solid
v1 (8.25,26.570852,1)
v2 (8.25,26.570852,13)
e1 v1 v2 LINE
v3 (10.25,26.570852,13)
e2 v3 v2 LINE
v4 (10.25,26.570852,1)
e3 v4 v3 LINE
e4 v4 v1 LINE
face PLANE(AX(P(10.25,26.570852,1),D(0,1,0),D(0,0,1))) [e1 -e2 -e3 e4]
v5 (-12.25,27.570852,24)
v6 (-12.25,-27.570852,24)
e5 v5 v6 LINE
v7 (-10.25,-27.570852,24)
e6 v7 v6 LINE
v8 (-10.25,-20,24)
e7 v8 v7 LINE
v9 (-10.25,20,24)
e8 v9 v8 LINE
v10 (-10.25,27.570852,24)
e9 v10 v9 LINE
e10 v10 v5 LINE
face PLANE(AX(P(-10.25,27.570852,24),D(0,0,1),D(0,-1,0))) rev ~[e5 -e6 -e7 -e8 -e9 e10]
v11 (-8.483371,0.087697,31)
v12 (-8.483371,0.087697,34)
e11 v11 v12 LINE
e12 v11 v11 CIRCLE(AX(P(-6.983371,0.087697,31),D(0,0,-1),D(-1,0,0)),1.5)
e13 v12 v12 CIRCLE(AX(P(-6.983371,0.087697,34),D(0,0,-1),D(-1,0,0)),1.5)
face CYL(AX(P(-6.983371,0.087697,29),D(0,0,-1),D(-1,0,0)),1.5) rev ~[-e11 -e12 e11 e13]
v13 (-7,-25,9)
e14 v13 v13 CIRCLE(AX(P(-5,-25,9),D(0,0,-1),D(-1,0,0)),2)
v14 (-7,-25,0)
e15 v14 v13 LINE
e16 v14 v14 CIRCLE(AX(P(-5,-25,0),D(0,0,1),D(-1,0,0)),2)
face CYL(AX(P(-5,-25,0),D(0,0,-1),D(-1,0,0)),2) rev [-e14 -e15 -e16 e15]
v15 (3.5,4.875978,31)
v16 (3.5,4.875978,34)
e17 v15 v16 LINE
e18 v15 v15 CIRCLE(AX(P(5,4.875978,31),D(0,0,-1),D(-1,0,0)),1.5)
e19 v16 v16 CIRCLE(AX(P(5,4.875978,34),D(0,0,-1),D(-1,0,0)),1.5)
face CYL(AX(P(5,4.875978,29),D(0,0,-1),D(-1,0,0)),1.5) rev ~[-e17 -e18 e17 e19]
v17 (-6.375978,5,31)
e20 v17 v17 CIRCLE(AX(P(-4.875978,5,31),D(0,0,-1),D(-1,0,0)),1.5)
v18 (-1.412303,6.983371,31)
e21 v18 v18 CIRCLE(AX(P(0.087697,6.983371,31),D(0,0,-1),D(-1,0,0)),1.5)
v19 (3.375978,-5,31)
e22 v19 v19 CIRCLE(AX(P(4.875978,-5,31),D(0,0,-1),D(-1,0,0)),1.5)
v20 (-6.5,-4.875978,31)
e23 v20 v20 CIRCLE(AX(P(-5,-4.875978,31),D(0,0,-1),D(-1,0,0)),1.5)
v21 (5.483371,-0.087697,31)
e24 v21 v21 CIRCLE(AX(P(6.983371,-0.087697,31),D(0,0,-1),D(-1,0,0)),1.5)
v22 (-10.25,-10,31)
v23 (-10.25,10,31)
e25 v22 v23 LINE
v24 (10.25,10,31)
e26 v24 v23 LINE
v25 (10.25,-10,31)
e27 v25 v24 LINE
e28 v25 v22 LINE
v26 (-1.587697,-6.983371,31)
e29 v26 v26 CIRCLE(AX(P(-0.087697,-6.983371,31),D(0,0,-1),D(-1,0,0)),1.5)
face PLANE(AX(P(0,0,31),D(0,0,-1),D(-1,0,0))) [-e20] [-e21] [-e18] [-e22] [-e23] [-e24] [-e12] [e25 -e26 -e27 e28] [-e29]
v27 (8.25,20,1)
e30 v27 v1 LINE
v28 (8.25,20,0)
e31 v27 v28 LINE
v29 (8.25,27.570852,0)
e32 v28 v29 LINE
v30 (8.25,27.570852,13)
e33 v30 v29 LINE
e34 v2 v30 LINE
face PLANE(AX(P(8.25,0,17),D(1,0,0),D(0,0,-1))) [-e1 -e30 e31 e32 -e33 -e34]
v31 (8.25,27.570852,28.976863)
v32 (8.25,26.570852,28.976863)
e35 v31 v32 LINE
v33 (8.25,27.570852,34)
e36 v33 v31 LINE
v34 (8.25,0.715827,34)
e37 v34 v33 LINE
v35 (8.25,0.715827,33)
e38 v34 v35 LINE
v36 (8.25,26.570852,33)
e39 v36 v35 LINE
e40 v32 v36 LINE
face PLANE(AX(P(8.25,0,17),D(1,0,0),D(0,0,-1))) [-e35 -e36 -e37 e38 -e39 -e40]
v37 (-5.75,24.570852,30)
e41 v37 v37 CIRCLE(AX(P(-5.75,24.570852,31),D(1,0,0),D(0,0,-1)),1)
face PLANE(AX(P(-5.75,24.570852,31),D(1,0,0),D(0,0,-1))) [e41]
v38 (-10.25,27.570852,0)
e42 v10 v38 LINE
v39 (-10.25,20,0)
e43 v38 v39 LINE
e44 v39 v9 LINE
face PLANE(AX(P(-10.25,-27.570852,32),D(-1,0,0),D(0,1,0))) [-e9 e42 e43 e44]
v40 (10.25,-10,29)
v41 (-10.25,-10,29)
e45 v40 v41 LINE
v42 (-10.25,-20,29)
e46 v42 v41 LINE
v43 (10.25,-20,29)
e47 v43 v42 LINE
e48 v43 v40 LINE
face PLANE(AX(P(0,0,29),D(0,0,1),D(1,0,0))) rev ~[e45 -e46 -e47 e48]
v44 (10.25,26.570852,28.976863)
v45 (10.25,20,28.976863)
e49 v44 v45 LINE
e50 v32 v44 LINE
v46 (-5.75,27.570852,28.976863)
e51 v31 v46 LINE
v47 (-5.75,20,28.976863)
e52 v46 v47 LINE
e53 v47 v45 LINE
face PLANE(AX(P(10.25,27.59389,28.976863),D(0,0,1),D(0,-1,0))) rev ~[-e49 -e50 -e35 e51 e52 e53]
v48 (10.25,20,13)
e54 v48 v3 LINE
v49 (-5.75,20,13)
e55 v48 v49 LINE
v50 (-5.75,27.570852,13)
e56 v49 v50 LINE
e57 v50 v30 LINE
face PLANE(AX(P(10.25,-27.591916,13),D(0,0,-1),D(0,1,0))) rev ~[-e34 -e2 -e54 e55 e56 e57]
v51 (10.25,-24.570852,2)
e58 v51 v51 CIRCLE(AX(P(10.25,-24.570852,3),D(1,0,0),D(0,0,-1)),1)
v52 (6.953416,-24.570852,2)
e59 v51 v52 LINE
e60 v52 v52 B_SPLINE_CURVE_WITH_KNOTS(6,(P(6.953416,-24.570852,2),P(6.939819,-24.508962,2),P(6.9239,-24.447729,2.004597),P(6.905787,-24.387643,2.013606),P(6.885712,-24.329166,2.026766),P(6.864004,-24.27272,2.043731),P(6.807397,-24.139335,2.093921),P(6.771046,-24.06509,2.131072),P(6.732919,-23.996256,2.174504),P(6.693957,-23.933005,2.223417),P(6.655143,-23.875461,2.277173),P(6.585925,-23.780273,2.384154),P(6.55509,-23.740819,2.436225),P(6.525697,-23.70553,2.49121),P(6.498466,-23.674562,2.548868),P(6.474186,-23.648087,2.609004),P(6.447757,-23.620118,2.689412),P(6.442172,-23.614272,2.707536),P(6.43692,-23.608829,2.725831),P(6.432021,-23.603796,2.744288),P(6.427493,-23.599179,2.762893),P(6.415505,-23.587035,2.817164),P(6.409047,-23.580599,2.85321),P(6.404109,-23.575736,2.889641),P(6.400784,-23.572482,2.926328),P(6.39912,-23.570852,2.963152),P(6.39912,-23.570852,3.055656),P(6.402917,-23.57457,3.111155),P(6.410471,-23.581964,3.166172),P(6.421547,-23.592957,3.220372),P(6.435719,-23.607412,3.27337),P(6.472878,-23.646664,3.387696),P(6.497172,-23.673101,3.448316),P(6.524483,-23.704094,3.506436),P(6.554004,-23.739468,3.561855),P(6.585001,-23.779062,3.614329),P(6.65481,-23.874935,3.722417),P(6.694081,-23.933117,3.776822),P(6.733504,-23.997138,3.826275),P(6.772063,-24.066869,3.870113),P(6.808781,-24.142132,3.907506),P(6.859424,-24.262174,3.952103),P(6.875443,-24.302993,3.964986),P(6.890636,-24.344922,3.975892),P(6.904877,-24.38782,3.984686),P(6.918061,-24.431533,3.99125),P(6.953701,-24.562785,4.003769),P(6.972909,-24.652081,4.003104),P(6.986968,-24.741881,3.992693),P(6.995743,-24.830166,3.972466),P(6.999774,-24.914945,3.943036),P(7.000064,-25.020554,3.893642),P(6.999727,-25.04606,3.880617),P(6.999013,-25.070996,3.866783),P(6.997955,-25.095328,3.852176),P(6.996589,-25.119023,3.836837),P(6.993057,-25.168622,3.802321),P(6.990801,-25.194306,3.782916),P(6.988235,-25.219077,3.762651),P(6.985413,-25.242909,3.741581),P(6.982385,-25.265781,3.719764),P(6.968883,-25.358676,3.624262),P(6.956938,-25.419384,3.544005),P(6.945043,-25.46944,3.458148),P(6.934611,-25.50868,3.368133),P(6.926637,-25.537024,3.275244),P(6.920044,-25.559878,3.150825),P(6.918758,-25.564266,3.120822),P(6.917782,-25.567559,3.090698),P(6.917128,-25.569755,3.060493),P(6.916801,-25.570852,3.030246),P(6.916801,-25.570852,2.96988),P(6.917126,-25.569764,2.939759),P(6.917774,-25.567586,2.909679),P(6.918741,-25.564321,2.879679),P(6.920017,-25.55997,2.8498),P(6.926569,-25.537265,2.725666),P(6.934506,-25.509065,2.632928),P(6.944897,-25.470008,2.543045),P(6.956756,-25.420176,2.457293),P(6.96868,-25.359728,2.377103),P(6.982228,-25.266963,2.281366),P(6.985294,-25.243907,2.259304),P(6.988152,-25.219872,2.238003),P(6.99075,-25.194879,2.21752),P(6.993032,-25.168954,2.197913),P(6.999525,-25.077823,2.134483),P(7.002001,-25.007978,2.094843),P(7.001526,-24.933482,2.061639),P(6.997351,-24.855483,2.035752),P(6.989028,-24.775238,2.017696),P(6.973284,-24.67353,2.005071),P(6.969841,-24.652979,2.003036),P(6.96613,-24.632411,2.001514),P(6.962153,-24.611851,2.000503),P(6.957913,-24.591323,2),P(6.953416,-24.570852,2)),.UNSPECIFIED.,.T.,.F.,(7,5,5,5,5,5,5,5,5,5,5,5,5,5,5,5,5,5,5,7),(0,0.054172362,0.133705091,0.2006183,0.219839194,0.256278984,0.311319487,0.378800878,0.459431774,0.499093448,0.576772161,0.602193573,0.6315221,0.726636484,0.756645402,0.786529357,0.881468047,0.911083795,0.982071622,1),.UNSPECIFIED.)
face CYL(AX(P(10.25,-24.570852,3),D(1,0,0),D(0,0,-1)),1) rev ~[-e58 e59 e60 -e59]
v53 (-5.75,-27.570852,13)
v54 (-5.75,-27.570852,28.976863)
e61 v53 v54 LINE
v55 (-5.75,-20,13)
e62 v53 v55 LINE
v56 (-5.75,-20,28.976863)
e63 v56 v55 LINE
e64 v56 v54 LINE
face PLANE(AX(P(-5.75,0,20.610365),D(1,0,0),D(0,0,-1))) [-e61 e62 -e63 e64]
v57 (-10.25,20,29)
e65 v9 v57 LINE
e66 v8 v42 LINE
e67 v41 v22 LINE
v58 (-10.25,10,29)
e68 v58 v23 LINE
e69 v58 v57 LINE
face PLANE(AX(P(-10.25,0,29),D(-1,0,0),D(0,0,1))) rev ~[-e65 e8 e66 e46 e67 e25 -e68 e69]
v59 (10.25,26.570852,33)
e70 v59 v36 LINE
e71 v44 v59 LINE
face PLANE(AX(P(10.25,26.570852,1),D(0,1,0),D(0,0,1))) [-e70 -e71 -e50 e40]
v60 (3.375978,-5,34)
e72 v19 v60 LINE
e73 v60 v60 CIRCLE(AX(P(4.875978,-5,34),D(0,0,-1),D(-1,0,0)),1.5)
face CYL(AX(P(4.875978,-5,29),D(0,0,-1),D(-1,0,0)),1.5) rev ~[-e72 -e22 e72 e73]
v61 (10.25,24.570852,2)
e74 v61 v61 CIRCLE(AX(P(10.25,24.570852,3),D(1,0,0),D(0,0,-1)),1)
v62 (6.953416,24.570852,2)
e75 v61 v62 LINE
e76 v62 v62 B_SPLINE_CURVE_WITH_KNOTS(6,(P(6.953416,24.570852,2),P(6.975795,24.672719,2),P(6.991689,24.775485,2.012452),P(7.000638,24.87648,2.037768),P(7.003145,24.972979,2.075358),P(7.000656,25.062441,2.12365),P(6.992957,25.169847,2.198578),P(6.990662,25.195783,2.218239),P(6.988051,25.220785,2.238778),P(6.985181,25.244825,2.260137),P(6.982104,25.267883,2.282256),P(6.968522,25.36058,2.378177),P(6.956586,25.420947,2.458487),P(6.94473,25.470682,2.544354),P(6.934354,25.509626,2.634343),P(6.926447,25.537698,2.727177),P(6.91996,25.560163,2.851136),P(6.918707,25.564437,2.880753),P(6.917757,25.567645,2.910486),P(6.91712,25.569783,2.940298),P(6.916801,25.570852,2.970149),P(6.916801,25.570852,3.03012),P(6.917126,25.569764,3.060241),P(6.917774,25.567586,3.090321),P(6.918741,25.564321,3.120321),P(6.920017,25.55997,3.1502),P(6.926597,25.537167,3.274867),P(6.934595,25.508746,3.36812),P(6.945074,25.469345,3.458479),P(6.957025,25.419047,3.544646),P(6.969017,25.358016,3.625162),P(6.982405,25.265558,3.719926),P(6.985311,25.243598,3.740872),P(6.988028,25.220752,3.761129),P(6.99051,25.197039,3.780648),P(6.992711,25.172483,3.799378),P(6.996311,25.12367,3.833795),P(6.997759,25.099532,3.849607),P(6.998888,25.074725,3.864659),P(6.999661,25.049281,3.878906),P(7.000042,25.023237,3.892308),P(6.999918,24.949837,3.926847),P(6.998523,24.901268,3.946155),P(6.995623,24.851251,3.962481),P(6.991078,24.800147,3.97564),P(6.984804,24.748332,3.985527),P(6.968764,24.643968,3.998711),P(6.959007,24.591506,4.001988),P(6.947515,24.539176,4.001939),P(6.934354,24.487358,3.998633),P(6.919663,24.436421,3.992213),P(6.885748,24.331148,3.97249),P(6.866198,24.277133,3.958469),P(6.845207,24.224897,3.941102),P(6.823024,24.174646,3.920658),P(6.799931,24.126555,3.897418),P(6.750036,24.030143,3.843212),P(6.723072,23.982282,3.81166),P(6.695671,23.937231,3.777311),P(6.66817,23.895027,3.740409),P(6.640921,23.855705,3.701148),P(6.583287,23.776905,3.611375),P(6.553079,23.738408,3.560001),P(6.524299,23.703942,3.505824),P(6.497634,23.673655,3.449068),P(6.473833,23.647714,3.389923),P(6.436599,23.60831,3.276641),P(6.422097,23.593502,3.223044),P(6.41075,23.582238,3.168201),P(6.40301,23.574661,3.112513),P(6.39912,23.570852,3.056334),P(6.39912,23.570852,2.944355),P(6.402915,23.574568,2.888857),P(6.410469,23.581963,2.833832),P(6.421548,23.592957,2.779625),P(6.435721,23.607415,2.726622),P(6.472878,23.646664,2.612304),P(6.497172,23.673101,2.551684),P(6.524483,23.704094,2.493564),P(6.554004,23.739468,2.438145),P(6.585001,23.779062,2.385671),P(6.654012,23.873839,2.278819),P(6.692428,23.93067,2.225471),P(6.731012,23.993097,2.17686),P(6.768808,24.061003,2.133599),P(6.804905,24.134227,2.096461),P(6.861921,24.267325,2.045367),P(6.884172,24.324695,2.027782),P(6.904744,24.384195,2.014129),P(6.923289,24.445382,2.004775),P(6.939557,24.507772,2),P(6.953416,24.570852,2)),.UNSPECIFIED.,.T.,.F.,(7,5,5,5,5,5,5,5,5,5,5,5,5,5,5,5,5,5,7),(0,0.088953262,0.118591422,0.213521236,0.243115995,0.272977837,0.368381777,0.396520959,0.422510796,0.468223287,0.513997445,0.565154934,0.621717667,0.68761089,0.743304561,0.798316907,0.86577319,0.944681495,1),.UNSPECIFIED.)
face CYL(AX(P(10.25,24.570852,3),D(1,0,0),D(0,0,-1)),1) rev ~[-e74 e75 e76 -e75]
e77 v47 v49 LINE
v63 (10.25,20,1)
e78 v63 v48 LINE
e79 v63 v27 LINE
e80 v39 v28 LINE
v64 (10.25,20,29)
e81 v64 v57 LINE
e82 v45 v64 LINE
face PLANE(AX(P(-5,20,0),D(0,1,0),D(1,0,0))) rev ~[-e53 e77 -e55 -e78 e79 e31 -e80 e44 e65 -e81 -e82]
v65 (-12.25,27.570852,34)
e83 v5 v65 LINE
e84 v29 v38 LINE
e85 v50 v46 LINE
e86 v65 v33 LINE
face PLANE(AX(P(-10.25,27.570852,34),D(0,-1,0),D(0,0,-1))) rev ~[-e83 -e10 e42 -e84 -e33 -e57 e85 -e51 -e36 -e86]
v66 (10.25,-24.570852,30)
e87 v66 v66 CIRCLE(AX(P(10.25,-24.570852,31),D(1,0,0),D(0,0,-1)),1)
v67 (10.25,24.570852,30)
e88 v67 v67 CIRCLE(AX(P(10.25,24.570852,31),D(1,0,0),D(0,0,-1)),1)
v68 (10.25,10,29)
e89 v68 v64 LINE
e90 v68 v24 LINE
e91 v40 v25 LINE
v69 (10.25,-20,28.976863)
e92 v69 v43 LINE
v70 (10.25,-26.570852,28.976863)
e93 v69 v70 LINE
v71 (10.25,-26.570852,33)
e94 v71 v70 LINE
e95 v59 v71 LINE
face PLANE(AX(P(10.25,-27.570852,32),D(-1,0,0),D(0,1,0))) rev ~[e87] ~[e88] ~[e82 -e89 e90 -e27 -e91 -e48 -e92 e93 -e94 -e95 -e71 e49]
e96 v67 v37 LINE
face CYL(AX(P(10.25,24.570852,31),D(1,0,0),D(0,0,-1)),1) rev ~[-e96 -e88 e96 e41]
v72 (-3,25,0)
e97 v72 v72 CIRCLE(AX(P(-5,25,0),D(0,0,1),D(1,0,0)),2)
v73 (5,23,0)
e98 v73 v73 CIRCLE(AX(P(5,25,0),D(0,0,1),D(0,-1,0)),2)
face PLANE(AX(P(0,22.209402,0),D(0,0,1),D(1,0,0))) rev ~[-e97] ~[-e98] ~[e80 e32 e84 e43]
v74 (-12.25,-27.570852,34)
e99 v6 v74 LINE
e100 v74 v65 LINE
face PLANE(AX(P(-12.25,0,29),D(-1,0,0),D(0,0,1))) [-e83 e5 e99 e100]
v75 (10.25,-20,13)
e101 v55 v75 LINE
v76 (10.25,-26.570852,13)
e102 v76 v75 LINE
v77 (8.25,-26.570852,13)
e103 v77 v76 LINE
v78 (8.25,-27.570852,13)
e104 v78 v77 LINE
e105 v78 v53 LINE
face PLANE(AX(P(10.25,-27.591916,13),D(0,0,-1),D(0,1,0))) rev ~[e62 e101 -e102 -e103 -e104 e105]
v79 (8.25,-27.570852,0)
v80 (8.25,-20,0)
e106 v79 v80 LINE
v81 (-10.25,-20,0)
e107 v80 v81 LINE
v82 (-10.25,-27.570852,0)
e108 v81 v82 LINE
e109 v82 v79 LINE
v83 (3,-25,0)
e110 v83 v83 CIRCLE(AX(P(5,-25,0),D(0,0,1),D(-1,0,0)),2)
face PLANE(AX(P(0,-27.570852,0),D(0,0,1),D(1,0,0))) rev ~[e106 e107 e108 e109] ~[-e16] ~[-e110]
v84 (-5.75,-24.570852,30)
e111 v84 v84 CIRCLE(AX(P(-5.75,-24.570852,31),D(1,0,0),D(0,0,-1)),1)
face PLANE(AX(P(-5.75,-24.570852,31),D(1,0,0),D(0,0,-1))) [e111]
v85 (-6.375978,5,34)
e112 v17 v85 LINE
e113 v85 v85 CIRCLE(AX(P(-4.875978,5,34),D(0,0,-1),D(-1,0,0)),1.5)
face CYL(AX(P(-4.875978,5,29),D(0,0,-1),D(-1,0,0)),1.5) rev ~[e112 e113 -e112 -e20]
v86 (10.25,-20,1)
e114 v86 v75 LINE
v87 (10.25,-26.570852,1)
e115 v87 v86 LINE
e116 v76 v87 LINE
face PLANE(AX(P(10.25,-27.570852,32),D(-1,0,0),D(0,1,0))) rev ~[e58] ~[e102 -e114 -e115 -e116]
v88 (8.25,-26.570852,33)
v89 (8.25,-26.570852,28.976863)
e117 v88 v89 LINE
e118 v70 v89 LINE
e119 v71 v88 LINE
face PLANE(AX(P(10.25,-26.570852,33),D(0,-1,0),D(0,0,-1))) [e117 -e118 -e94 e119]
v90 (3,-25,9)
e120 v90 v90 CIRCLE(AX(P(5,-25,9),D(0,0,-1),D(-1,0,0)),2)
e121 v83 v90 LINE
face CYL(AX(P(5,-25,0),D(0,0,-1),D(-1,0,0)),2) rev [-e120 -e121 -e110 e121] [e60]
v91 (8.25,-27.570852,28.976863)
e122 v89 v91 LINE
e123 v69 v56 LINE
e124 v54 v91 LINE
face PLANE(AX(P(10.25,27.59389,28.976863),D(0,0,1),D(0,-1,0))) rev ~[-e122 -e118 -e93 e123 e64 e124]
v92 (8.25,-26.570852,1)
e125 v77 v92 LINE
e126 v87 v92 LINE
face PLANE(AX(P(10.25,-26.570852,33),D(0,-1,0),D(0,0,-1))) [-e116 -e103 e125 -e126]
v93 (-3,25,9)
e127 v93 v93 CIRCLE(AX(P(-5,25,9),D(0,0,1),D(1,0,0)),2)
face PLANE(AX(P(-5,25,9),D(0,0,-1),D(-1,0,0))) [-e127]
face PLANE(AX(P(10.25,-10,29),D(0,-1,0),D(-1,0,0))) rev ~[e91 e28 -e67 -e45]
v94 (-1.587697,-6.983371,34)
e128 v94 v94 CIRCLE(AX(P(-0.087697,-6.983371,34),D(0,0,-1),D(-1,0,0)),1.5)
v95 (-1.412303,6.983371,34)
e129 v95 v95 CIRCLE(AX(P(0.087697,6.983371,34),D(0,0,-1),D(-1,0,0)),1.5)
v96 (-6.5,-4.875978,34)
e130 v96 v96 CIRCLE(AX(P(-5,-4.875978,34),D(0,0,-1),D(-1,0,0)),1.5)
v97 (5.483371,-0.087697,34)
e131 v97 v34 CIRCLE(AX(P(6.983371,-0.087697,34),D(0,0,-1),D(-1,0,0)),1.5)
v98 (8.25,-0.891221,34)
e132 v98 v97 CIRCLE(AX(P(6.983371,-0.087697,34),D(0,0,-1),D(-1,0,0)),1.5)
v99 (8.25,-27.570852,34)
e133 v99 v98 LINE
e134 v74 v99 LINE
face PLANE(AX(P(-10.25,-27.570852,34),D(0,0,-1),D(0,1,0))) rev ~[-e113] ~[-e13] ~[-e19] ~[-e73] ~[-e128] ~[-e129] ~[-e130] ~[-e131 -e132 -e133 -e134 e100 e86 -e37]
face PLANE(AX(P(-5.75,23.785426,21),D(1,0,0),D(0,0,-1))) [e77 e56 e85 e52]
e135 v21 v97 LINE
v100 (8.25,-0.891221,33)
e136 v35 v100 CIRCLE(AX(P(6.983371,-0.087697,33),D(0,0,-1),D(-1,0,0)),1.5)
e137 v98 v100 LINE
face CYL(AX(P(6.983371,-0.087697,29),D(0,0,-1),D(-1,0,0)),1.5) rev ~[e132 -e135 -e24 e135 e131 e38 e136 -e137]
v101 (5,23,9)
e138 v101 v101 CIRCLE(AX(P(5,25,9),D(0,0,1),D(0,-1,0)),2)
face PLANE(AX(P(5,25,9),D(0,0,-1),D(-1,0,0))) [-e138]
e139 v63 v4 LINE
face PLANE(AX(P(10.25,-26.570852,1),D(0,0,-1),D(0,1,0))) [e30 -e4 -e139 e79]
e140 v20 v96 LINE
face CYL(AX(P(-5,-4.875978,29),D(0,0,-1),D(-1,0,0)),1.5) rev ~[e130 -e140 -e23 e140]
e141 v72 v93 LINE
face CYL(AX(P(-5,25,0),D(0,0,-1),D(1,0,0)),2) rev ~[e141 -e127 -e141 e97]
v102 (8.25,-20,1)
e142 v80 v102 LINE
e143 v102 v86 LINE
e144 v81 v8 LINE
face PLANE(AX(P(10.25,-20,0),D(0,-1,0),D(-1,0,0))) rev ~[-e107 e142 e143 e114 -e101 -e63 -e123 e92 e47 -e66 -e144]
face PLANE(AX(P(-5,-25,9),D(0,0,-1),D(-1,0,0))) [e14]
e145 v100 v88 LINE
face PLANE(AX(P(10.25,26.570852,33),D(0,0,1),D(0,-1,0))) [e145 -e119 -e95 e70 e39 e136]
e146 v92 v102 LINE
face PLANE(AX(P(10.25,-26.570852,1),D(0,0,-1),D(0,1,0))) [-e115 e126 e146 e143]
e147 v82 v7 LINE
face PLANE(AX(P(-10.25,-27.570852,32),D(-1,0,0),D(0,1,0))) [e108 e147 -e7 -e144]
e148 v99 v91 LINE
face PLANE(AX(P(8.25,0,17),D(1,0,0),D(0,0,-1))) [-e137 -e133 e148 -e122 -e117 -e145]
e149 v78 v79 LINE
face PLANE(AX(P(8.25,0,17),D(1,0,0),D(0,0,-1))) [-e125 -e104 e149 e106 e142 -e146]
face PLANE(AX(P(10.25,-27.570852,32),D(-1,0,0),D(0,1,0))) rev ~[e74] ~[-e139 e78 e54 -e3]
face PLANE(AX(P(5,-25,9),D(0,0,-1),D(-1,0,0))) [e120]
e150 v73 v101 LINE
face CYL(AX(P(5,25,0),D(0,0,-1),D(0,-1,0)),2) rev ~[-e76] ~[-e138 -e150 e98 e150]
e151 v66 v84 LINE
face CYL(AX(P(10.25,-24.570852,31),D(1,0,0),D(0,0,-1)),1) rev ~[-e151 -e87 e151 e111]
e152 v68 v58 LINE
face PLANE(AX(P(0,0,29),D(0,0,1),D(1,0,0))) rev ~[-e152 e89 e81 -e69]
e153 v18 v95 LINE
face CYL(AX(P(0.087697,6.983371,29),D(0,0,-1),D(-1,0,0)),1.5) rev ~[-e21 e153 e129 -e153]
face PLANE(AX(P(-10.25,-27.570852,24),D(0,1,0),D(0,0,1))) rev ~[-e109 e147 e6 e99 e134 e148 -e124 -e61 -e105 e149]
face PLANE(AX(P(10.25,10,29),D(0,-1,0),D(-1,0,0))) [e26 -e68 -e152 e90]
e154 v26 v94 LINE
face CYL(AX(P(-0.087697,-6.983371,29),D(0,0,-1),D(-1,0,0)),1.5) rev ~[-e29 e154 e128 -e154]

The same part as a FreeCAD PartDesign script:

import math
import FreeCAD as App
import Part
import Sketcher


def add_polygon(sketch, points):
    """Adds a closed chain of lines whose ends are joined by coincident constraints."""
    first, n = sketch.GeometryCount, len(points)
    for a, b in zip(points, points[1:] + points[:1]):
        sketch.addGeometry(Part.LineSegment(App.Vector(*a, 0), App.Vector(*b, 0)), False)
    for i in range(n):
        sketch.addConstraint(Sketcher.Constraint("Coincident", first + i, 2, first + (i + 1) % n, 1))

doc = App.newDocument("Part")
body = doc.addObject("PartDesign::Body", "Body")
body.AllowCompound = True

sketch1 = body.newObject("Sketcher::SketchObject", "Sketch")
sketch1.AttachmentSupport = (doc.getObject("XY_Plane"), [""])
sketch1.MapMode = "FlatFace"
add_polygon(sketch1, [(-10.25, 35.141705), (-10.25, 20), (10.25, 20), (10.25, 35.141705)])
sketch1.addGeometry(Part.Circle(App.Vector(-5, 25, 0), App.Vector(0, 0, 1), 2), False)
sketch1.addGeometry(Part.Circle(App.Vector(5, 25, 0), App.Vector(0, 0, 1), 2), False)
add_polygon(sketch1, [(10.25, -20), (-10.25, -20), (-10.25, -35.141705), (10.25, -35.141705)])
sketch1.addGeometry(Part.Circle(App.Vector(-5, -25, 0), App.Vector(0, 0, 1), 2), False)
sketch1.addGeometry(Part.Circle(App.Vector(5, -25, 0), App.Vector(0, 0, 1), 2), False)
sketch1.addConstraint([
    Sketcher.Constraint("Vertical", 0),
    Sketcher.Constraint("Horizontal", 1),
    Sketcher.Constraint("Vertical", 2),
    Sketcher.Constraint("Horizontal", 3),
    Sketcher.Constraint("Horizontal", 6),
    Sketcher.Constraint("Vertical", 7),
    Sketcher.Constraint("Horizontal", 8),
    Sketcher.Constraint("Vertical", 9),
    Sketcher.Constraint("Equal", 4, 5),
    Sketcher.Constraint("Equal", 5, 10),
    Sketcher.Constraint("Equal", 10, 11),
    Sketcher.Constraint("Symmetric", 5, 3, 10, 3, -1, 1),
    Sketcher.Constraint("Symmetric", 4, 3, 11, 3, -1, 1),
    Sketcher.Constraint("Symmetric", 1, 2, 6, 2, -1, 1),
    Sketcher.Constraint("Symmetric", 3, 2, 8, 2, -1, 1),
    Sketcher.Constraint("Symmetric", 4, 3, 5, 3, -2),
    Sketcher.Constraint("Vertical", 3, 2, 6, 2),
    Sketcher.Constraint("Diameter", 4, 4.0),
    Sketcher.Constraint("DistanceX", 1, 1, 1, 2, 20.5),
    Sketcher.Constraint("DistanceX", 4, 3, -1, 1, 5.0),
    Sketcher.Constraint("DistanceY", -1, 1, 4, 3, 25.0),
    Sketcher.Constraint("DistanceY", -1, 1, 0, 2, 20.0),
    Sketcher.Constraint("DistanceY", 0, 2, 0, 1, 15.141705),
])
pad1 = body.newObject("PartDesign::Pad", "Pad")
pad1.Profile = sketch1
pad1.Length = 29

sketch2 = body.newObject("Sketcher::SketchObject", "Sketch001")
sketch2.AttachmentSupport = (doc.getObject("XY_Plane"), [""])
sketch2.MapMode = "FlatFace"
sketch2.AttachmentOffset = App.Placement(App.Vector(0, 0, 29), App.Rotation())
add_polygon(sketch2, [(-10.25, 35.141705), (-10.25, -35.141705), (10.25, -35.141705), (10.25, 35.141705)])
sketch2.addConstraint([
    Sketcher.Constraint("Vertical", 0),
    Sketcher.Constraint("Horizontal", 1),
    Sketcher.Constraint("Vertical", 2),
    Sketcher.Constraint("Horizontal", 3),
    Sketcher.Constraint("Symmetric", 0, 2, 2, 2, -1, 1),
    Sketcher.Constraint("DistanceX", 1, 1, 1, 2, 20.5),
    Sketcher.Constraint("DistanceY", 0, 2, 0, 1, 70.28341),
])
pad2 = body.newObject("PartDesign::Pad", "Pad001")
pad2.Profile = sketch2
pad2.Length = 3

sketch3 = body.newObject("Sketcher::SketchObject", "Sketch002")
sketch3.AttachmentSupport = (doc.getObject("XY_Plane"), [""])
sketch3.MapMode = "FlatFace"
add_polygon(sketch3, [(10.25, -27.570852), (10.25, -35.141705), (-10.25, -35.141705), (-10.25, -27.570852)])
add_polygon(sketch3, [(10.25, 35.141705), (10.25, 27.570852), (-10.25, 27.570852), (-10.25, 35.141705)])
sketch3.addConstraint([
    Sketcher.Constraint("Vertical", 0),
    Sketcher.Constraint("Horizontal", 1),
    Sketcher.Constraint("Vertical", 2),
    Sketcher.Constraint("Horizontal", 3),
    Sketcher.Constraint("Vertical", 4),
    Sketcher.Constraint("Horizontal", 5),
    Sketcher.Constraint("Vertical", 6),
    Sketcher.Constraint("Horizontal", 7),
    Sketcher.Constraint("Symmetric", 2, 2, 4, 2, -1, 1),
    Sketcher.Constraint("Symmetric", 0, 2, 6, 2, -1, 1),
    Sketcher.Constraint("Vertical", 3, 2, 4, 2),
    Sketcher.Constraint("DistanceX", 1, 2, 1, 1, 20.5),
    Sketcher.Constraint("DistanceY", 0, 2, 0, 1, 7.570852),
    Sketcher.Constraint("DistanceY", 1, 2, 6, 2, 70.28341),
])
pocket1 = body.newObject("PartDesign::Pocket", "Pocket")
pocket1.Profile = sketch3
pocket1.Type = "ThroughAll"
pocket1.Reversed = True

sketch4 = body.newObject("Sketcher::SketchObject", "Sketch003")
sketch4.AttachmentSupport = (doc.getObject("XZ_Plane"), [""])
sketch4.MapMode = "FlatFace"
sketch4.AttachmentOffset = App.Placement(App.Vector(0, 0, 27.570852), App.Rotation())
sketch4.addGeometry(Part.Circle(App.Vector(0, 2.5, 0), App.Vector(0, 0, 1), 2.5), False)
sketch4.addConstraint([
    Sketcher.Constraint("PointOnObject", 0, 3, -2),
    Sketcher.Constraint("Diameter", 0, 5.0),
    Sketcher.Constraint("DistanceY", -1, 1, 0, 3, 2.5),
])
pad3 = body.newObject("PartDesign::Pad", "Pad002")
pad3.Profile = sketch4
pad3.Length = 10

sketch5 = body.newObject("Sketcher::SketchObject", "Sketch004")
sketch5.AttachmentSupport = (doc.getObject("XZ_Plane"), [""])
sketch5.MapMode = "FlatFace"
sketch5.AttachmentOffset = App.Placement(App.Vector(0, 0, -27.570852), App.Rotation())
sketch5.addGeometry(Part.Circle(App.Vector(0, 16.5, 0), App.Vector(0, 0, 1), 1.6), False)
sketch5.addConstraint([
    Sketcher.Constraint("PointOnObject", 0, 3, -2),
    Sketcher.Constraint("Diameter", 0, 3.2),
    Sketcher.Constraint("DistanceY", -1, 1, 0, 3, 16.5),
])
pocket2 = body.newObject("PartDesign::Pocket", "Pocket001")
pocket2.Profile = sketch5
pocket2.Type = "UpToFirst"
pocket2.Reversed = True

sketch6 = body.newObject("Sketcher::SketchObject", "Sketch005")
sketch6.AttachmentSupport = (doc.getObject("XZ_Plane"), [""])
sketch6.MapMode = "FlatFace"
sketch6.AttachmentOffset = App.Placement(App.Vector(0, 0, -27.570852), App.Rotation())
sketch6.addGeometry(Part.Circle(App.Vector(0, 26.5, 0), App.Vector(0, 0, 1), 1.6), False)
sketch6.addConstraint([
    Sketcher.Constraint("PointOnObject", 0, 3, -2),
    Sketcher.Constraint("Diameter", 0, 3.2),
    Sketcher.Constraint("DistanceY", -1, 1, 0, 3, 26.5),
])
pocket3 = body.newObject("PartDesign::Pocket", "Pocket002")
pocket3.Profile = sketch6
pocket3.Type = "UpToFirst"
pocket3.Reversed = True

sketch7 = body.newObject("Sketcher::SketchObject", "Sketch006")
sketch7.AttachmentSupport = (doc.getObject("XZ_Plane"), [""])
sketch7.MapMode = "FlatFace"
sketch7.AttachmentOffset = App.Placement(App.Vector(0, 0, 27.570852), App.Rotation())
add_polygon(sketch7, [(-10.25, 32), (-10.25, 0), (10.25, 0), (10.25, 32)])
sketch7.addConstraint([
    Sketcher.Constraint("Vertical", 0),
    Sketcher.Constraint("Horizontal", 1),
    Sketcher.Constraint("Vertical", 2),
    Sketcher.Constraint("Horizontal", 3),
    Sketcher.Constraint("Symmetric", 0, 2, 1, 2, -1, 1),
    Sketcher.Constraint("DistanceY", 0, 2, 0, 1, 32.0),
    Sketcher.Constraint("DistanceX", 1, 1, 1, 2, 20.5),
])
pocket4 = body.newObject("PartDesign::Pocket", "Pocket003")
pocket4.Profile = sketch7
pocket4.Type = "ThroughAll"
pocket4.Reversed = True

sketch8 = body.newObject("Sketcher::SketchObject", "Sketch007")
sketch8.AttachmentSupport = (doc.getObject("XY_Plane"), [""])
sketch8.MapMode = "FlatFace"
add_polygon(sketch8, [(10.25, 27.570852), (10.25, 20), (-10.25, 20), (-10.25, 27.570852)])
sketch8.addGeometry(Part.Circle(App.Vector(5, 25, 0), App.Vector(0, 0, 1), 2), False)
sketch8.addGeometry(Part.Circle(App.Vector(-5, 25, 0), App.Vector(0, 0, 1), 2), False)
sketch8.addConstraint([
    Sketcher.Constraint("Vertical", 0),
    Sketcher.Constraint("Horizontal", 1),
    Sketcher.Constraint("Vertical", 2),
    Sketcher.Constraint("Horizontal", 3),
    Sketcher.Constraint("Equal", 4, 5),
    Sketcher.Constraint("Symmetric", 4, 3, 5, 3, -2),
    Sketcher.Constraint("Diameter", 4, 4.0),
    Sketcher.Constraint("DistanceX", 1, 2, 1, 1, 20.5),
    Sketcher.Constraint("DistanceX", -1, 1, 4, 3, 5.0),
    Sketcher.Constraint("DistanceY", -1, 1, 4, 3, 25.0),
    Sketcher.Constraint("DistanceY", -1, 1, 0, 2, 20.0),
    Sketcher.Constraint("DistanceX", -1, 1, 0, 2, 10.25),
    Sketcher.Constraint("DistanceY", 0, 2, 0, 1, 7.570852),
])
pad4 = body.newObject("PartDesign::Pad", "Pad003")
pad4.Profile = sketch8
pad4.Length = 30

sketch9 = body.newObject("Sketcher::SketchObject", "Sketch008")
sketch9.AttachmentSupport = (doc.getObject("XZ_Plane"), [""])
sketch9.MapMode = "FlatFace"
sketch9.AttachmentOffset = App.Placement(App.Vector(0, 0, -27.570852), App.Rotation())
sketch9.addGeometry([
    Part.Circle(App.Vector(0, 5, 0), App.Vector(0, 0, 1), 4),
    Part.Circle(App.Vector(0, 5, 0), App.Vector(0, 0, 1), 2.5),
], False)
sketch9.addConstraint([
    Sketcher.Constraint("Coincident", 1, 3, 0, 3),
    Sketcher.Constraint("PointOnObject", 0, 3, -2),
    Sketcher.Constraint("Diameter", 0, 8.0),
    Sketcher.Constraint("Diameter", 1, 5.0),
    Sketcher.Constraint("DistanceY", -1, 1, 0, 3, 5.0),
])
pad5 = body.newObject("PartDesign::Pad", "Pad004")
pad5.Profile = sketch9
pad5.Length = 10
pad5.Reversed = True

sketch10 = body.newObject("Sketcher::SketchObject", "Sketch009")
sketch10.AttachmentSupport = (doc.getObject("YZ_Plane"), [""])
sketch10.MapMode = "FlatFace"
sketch10.addGeometry([
    Part.LineSegment(App.Vector(27.570852, 1, 0), App.Vector(27.570852, 0, 0)),
    Part.ArcOfCircle(Part.Circle(App.Vector(28.676012, -0.110689, 0), App.Vector(0, 0, 1), 1.110689), math.radians(90), math.radians(174.280548)),
    Part.LineSegment(App.Vector(28.676012, 1, 0), App.Vector(27.570852, 1, 0)),
], False)
sketch10.addGeometry(Part.LineSegment(App.Vector(27.570852, 5, 0), App.Vector(28.676012, 5, 0)), True)
sketch10.addConstraint([
    Sketcher.Constraint("Coincident", 0, 2, 1, 2),
    Sketcher.Constraint("Tangent", 1, 1, 2, 1),
    Sketcher.Constraint("Coincident", 2, 2, 0, 1),
    Sketcher.Constraint("Vertical", 0),
    Sketcher.Constraint("Horizontal", 2),
    Sketcher.Constraint("Horizontal", 3),
    Sketcher.Constraint("PointOnObject", 0, 2, -1),
    Sketcher.Constraint("Vertical", 2, 2, 3, 1),
    Sketcher.Constraint("Vertical", 1, 1, 3, 2),
    Sketcher.Constraint("DistanceY", 0, 2, 0, 1, 1.0),
    Sketcher.Constraint("DistanceY", -1, 1, 3, 1, 5.0),
    Sketcher.Constraint("Radius", 1, 1.110689),
    Sketcher.Constraint("DistanceX", -1, 1, 1, 3, 28.676012),
])
revolution = body.newObject("PartDesign::Revolution", "Revolution")
revolution.Profile = sketch10
revolution.ReferenceAxis = (sketch10, ["Axis0"])
revolution.Angle = 360

sketch11 = body.newObject("Sketcher::SketchObject", "Sketch010")
sketch11.AttachmentSupport = (doc.getObject("XY_Plane"), [""])
sketch11.MapMode = "FlatFace"
sketch11.AttachmentOffset = App.Placement(App.Vector(0, 0, 5), App.Rotation())
sketch11.addGeometry(Part.Circle(App.Vector(0, 33.570852, 0), App.Vector(0, 0, 1), 1.5), False)
sketch11.addConstraint([
    Sketcher.Constraint("PointOnObject", 0, 3, -2),
    Sketcher.Constraint("Diameter", 0, 3.0),
    Sketcher.Constraint("DistanceY", -1, 1, 0, 3, 33.570852),
])
pocket5 = body.newObject("PartDesign::Pocket", "Pocket004")
pocket5.Profile = sketch11
pocket5.Type = "ThroughAll"

sketch12 = body.newObject("Sketcher::SketchObject", "Sketch011")
sketch12.AttachmentSupport = (doc.getObject("YZ_Plane"), [""])
sketch12.MapMode = "FlatFace"
sketch12.addGeometry(Part.Circle(App.Vector(33.570852, 5, 0), App.Vector(0, 0, 1), 1.5), False)
sketch12.addConstraint([
    Sketcher.Constraint("Diameter", 0, 3.0),
    Sketcher.Constraint("DistanceY", -1, 1, 0, 3, 5.0),
    Sketcher.Constraint("DistanceX", -1, 1, 0, 3, 33.570852),
])
pocket6 = body.newObject("PartDesign::Pocket", "Pocket005")
pocket6.Profile = sketch12
pocket6.Type = "ThroughAll"

sketch13 = body.newObject("Sketcher::SketchObject", "Sketch012")
sketch13.AttachmentSupport = (doc.getObject("XZ_Plane"), [""])
sketch13.MapMode = "FlatFace"
sketch13.AttachmentOffset = App.Placement(App.Vector(0, 0, 37.570852), App.Rotation())
sketch13.addGeometry([
    Part.Circle(App.Vector(0, 5, 0), App.Vector(0, 0, 1), 4),
    Part.Circle(App.Vector(0, 5, 0), App.Vector(0, 0, 1), 2.5),
], False)
sketch13.addConstraint([
    Sketcher.Constraint("Coincident", 1, 3, 0, 3),
    Sketcher.Constraint("PointOnObject", 0, 3, -2),
    Sketcher.Constraint("Diameter", 0, 8.0),
    Sketcher.Constraint("Diameter", 1, 5.0),
    Sketcher.Constraint("DistanceY", -1, 1, 0, 3, 5.0),
])
pad6 = body.newObject("PartDesign::Pad", "Pad005")
pad6.Profile = sketch13
pad6.Length = 10
pad6.Reversed = True

sketch14 = body.newObject("Sketcher::SketchObject", "Sketch013")
sketch14.AttachmentSupport = (doc.getObject("YZ_Plane"), [""])
sketch14.MapMode = "FlatFace"
sketch14.addGeometry([
    Part.LineSegment(App.Vector(-27.570852, 0, 0), App.Vector(-27.570852, 1, 0)),
    Part.LineSegment(App.Vector(-27.570852, 1, 0), App.Vector(-28.570852, 1, 0)),
    Part.ArcOfCircle(Part.Circle(App.Vector(-28.570852, 0, 0), App.Vector(0, 0, 1), 1), math.radians(0), math.radians(90)),
], False)
sketch14.addGeometry(Part.LineSegment(App.Vector(-28.570852, 5, 0), App.Vector(-27.570852, 5, 0)), True)
sketch14.addConstraint([
    Sketcher.Constraint("Coincident", 0, 2, 1, 1),
    Sketcher.Constraint("Tangent", 1, 2, 2, 2),
    Sketcher.Constraint("Tangent", 2, 1, 0, 1),
    Sketcher.Constraint("Vertical", 0),
    Sketcher.Constraint("Horizontal", 1),
    Sketcher.Constraint("Horizontal", 3),
    Sketcher.Constraint("PointOnObject", 2, 3, -1),
    Sketcher.Constraint("Vertical", 1, 2, 3, 1),
    Sketcher.Constraint("Vertical", 2, 1, 3, 2),
    Sketcher.Constraint("Radius", 2, 1.0),
    Sketcher.Constraint("DistanceY", -1, 1, 3, 1, 5.0),
    Sketcher.Constraint("DistanceX", 2, 3, -1, 1, 28.570852),
])
revolution2 = body.newObject("PartDesign::Revolution", "Revolution001")
revolution2.Profile = sketch14
revolution2.ReferenceAxis = (sketch14, ["Axis0"])
revolution2.Angle = 360

sketch15 = body.newObject("Sketcher::SketchObject", "Sketch014")
sketch15.AttachmentSupport = (doc.getObject("XY_Plane"), [""])
sketch15.MapMode = "FlatFace"
sketch15.AttachmentOffset = App.Placement(App.Vector(0, 0, 5), App.Rotation())
sketch15.addGeometry(Part.Circle(App.Vector(0, -33.570852, 0), App.Vector(0, 0, 1), 1.5), False)
sketch15.addConstraint([
    Sketcher.Constraint("PointOnObject", 0, 3, -2),
    Sketcher.Constraint("Diameter", 0, 3.0),
    Sketcher.Constraint("DistanceY", 0, 3, -1, 1, 33.570852),
])
pocket7 = body.newObject("PartDesign::Pocket", "Pocket006")
pocket7.Profile = sketch15
pocket7.Type = "ThroughAll"

sketch16 = body.newObject("Sketcher::SketchObject", "Sketch015")
sketch16.AttachmentSupport = (doc.getObject("YZ_Plane"), [""])
sketch16.MapMode = "FlatFace"
sketch16.addGeometry(Part.Circle(App.Vector(-33.570852, 5, 0), App.Vector(0, 0, 1), 1.5), False)
sketch16.addConstraint([
    Sketcher.Constraint("Diameter", 0, 3.0),
    Sketcher.Constraint("DistanceY", -1, 1, 0, 3, 5.0),
    Sketcher.Constraint("DistanceX", 0, 3, -1, 1, 33.570852),
])
pocket8 = body.newObject("PartDesign::Pocket", "Pocket007")
pocket8.Profile = sketch16
pocket8.Type = "ThroughAll"

sketch17 = body.newObject("Sketcher::SketchObject", "Sketch016")
sketch17.AttachmentSupport = (doc.getObject("XY_Plane"), [""])
sketch17.MapMode = "FlatFace"
sketch17.AttachmentOffset = App.Placement(App.Vector(0, 0, 32), App.Rotation())
add_polygon(sketch17, [(-10.25, 27.570852), (-10.25, -27.570852), (10.25, -27.570852), (10.25, 27.570852)])
sketch17.addConstraint([
    Sketcher.Constraint("Vertical", 0),
    Sketcher.Constraint("Horizontal", 1),
    Sketcher.Constraint("Vertical", 2),
    Sketcher.Constraint("Horizontal", 3),
    Sketcher.Constraint("Symmetric", 0, 2, 2, 2, -1, 1),
    Sketcher.Constraint("DistanceX", 1, 1, 1, 2, 20.5),
    Sketcher.Constraint("DistanceY", 0, 2, 0, 1, 55.141705),
])
pad7 = body.newObject("PartDesign::Pad", "Pad006")
pad7.Profile = sketch17
pad7.Length = 2

sketch18 = body.newObject("Sketcher::SketchObject", "Sketch017")
sketch18.AttachmentSupport = (doc.getObject("YZ_Plane"), [""])
sketch18.MapMode = "FlatFace"
sketch18.AttachmentOffset = App.Placement(App.Vector(0, 0, -10.25), App.Rotation())
add_polygon(sketch18, [(27.570852, 34), (27.570852, 24), (-27.570852, 24), (-27.570852, 34)])
sketch18.addConstraint([
    Sketcher.Constraint("Vertical", 0),
    Sketcher.Constraint("Horizontal", 1),
    Sketcher.Constraint("Vertical", 2),
    Sketcher.Constraint("Horizontal", 3),
    Sketcher.Constraint("DistanceY", 0, 2, 0, 1, 10.0),
    Sketcher.Constraint("DistanceY", -1, 1, 0, 2, 24.0),
    Sketcher.Constraint("DistanceX", 1, 2, 1, 1, 55.141705),
    Sketcher.Constraint("DistanceX", -1, 1, 0, 2, 27.570852),
])
pad8 = body.newObject("PartDesign::Pad", "Pad007")
pad8.Profile = sketch18
pad8.Length = 2
pad8.Reversed = True

sketch19 = body.newObject("Sketcher::SketchObject", "Sketch018")
sketch19.AttachmentSupport = (doc.getObject("YZ_Plane"), [""])
sketch19.MapMode = "FlatFace"
sketch19.AttachmentOffset = App.Placement(App.Vector(0, 0, 10.25), App.Rotation())
add_polygon(sketch19, [(-20, 17), (-20, 25), (-27.570852, 25), (-27.570852, 17)])
add_polygon(sketch19, [(27.570852, 25), (20, 25), (20, 17), (27.570852, 17)])
sketch19.addConstraint([
    Sketcher.Constraint("Vertical", 0),
    Sketcher.Constraint("Horizontal", 1),
    Sketcher.Constraint("Vertical", 2),
    Sketcher.Constraint("Horizontal", 3),
    Sketcher.Constraint("Horizontal", 4),
    Sketcher.Constraint("Vertical", 5),
    Sketcher.Constraint("Horizontal", 6),
    Sketcher.Constraint("Vertical", 7),
    Sketcher.Constraint("Symmetric", 0, 2, 4, 2, -2),
    Sketcher.Constraint("Symmetric", 2, 2, 6, 2, -2),
    Sketcher.Constraint("DistanceY", 0, 1, 0, 2, 8.0),
    Sketcher.Constraint("DistanceX", 0, 2, -1, 1, 20.0),
    Sketcher.Constraint("DistanceY", -1, 1, 0, 2, 25.0),
    Sketcher.Constraint("DistanceX", 1, 2, 1, 1, 7.570852),
])
pocket9 = body.newObject("PartDesign::Pocket", "Pocket008")
pocket9.Profile = sketch19
pocket9.Length = 16

sketch20 = body.newObject("Sketcher::SketchObject", "Sketch019")
sketch20.AttachmentSupport = (doc.getObject("XY_Plane"), [""])
sketch20.MapMode = "FlatFace"
sketch20.AttachmentOffset = App.Placement(App.Vector(0, 0, 9), App.Rotation())
sketch20.addGeometry([
    Part.Circle(App.Vector(5, 25, 0), App.Vector(0, 0, 1), 2),
    Part.Circle(App.Vector(-5, 25, 0), App.Vector(0, 0, 1), 2),
    Part.Circle(App.Vector(5, -25, 0), App.Vector(0, 0, 1), 2),
    Part.Circle(App.Vector(-5, -25, 0), App.Vector(0, 0, 1), 2),
], False)
sketch20.addConstraint([
    Sketcher.Constraint("Equal", 0, 1),
    Sketcher.Constraint("Equal", 1, 2),
    Sketcher.Constraint("Equal", 2, 3),
    Sketcher.Constraint("Symmetric", 1, 3, 2, 3, -1, 1),
    Sketcher.Constraint("Symmetric", 0, 3, 3, 3, -1, 1),
    Sketcher.Constraint("Symmetric", 0, 3, 1, 3, -2),
    Sketcher.Constraint("Diameter", 0, 4.0),
    Sketcher.Constraint("DistanceX", -1, 1, 0, 3, 5.0),
    Sketcher.Constraint("DistanceY", -1, 1, 0, 3, 25.0),
])
pad9 = body.newObject("PartDesign::Pad", "Pad008")
pad9.Profile = sketch20
pad9.Length = 20

sketch21 = body.newObject("Sketcher::SketchObject", "Sketch020")
sketch21.AttachmentSupport = (doc.getObject("XZ_Plane"), [""])
sketch21.MapMode = "FlatFace"
sketch21.AttachmentOffset = App.Placement(App.Vector(0, 0, 27.570852), App.Rotation())
add_polygon(sketch21, [(-5.75, 25), (-5.75, 17), (10.25, 17), (10.25, 25)])
sketch21.addConstraint([
    Sketcher.Constraint("Vertical", 0),
    Sketcher.Constraint("Horizontal", 1),
    Sketcher.Constraint("Vertical", 2),
    Sketcher.Constraint("Horizontal", 3),
    Sketcher.Constraint("DistanceX", 1, 1, 1, 2, 16.0),
    Sketcher.Constraint("DistanceY", 0, 2, 0, 1, 8.0),
    Sketcher.Constraint("DistanceY", -1, 1, 0, 2, 17.0),
    Sketcher.Constraint("DistanceX", 0, 2, -1, 1, 5.75),
])
pocket10 = body.newObject("PartDesign::Pocket", "Pocket009")
pocket10.Profile = sketch21
pocket10.Type = "ThroughAll"

sketch22 = body.newObject("Sketcher::SketchObject", "Sketch021")
sketch22.AttachmentSupport = (doc.getObject("YZ_Plane"), [""])
sketch22.MapMode = "FlatFace"
sketch22.AttachmentOffset = App.Placement(App.Vector(0, 0, 10.25), App.Rotation())
add_polygon(sketch22, [(27.570852, 34), (-27.570852, 34), (-27.570852, 0), (27.570852, 0)])
add_polygon(sketch22, [(-26.570852, 33), (26.570852, 33), (26.570852, 1), (-26.570852, 1)])
sketch22.addConstraint([
    Sketcher.Constraint("Horizontal", 0),
    Sketcher.Constraint("Vertical", 1),
    Sketcher.Constraint("Horizontal", 2),
    Sketcher.Constraint("Vertical", 3),
    Sketcher.Constraint("Horizontal", 4),
    Sketcher.Constraint("Vertical", 5),
    Sketcher.Constraint("Horizontal", 6),
    Sketcher.Constraint("Vertical", 7),
    Sketcher.Constraint("Symmetric", 1, 2, 2, 2, -1, 1),
    Sketcher.Constraint("DistanceY", 1, 2, 1, 1, 34.0),
    Sketcher.Constraint("DistanceY", 5, 2, 5, 1, 32.0),
    Sketcher.Constraint("DistanceY", -1, 1, 4, 2, 33.0),
    Sketcher.Constraint("DistanceX", 4, 2, 3, 2, 1.0),
    Sketcher.Constraint("DistanceX", 1, 2, 6, 2, 1.0),
    Sketcher.Constraint("DistanceX", 0, 2, 0, 1, 55.141705),
])
pocket11 = body.newObject("PartDesign::Pocket", "Pocket010")
pocket11.Profile = sketch22
pocket11.Length = 2

sketch23 = body.newObject("Sketcher::SketchObject", "Sketch022")
sketch23.AttachmentSupport = (doc.getObject("YZ_Plane"), [""])
sketch23.MapMode = "FlatFace"
sketch23.AttachmentOffset = App.Placement(App.Vector(0, 0, 10.25), App.Rotation())
add_polygon(sketch23, [(-27.591916, 28.976863), (-27.591916, 13), (27.59389, 13), (27.59389, 28.976863)])
sketch23.addConstraint([
    Sketcher.Constraint("Vertical", 0),
    Sketcher.Constraint("Horizontal", 1),
    Sketcher.Constraint("Vertical", 2),
    Sketcher.Constraint("Horizontal", 3),
    Sketcher.Constraint("DistanceY", -1, 1, 0, 2, 13.0),
    Sketcher.Constraint("DistanceX", 1, 1, 1, 2, 55.185806),
    Sketcher.Constraint("DistanceY", 0, 2, 0, 1, 15.976863),
    Sketcher.Constraint("DistanceX", -1, 1, 1, 2, 27.59389),
])
pocket12 = body.newObject("PartDesign::Pocket", "Pocket011")
pocket12.Profile = sketch23
pocket12.Length = 16

sketch24 = body.newObject("Sketcher::SketchObject", "Sketch023")
sketch24.AttachmentSupport = (doc.getObject("YZ_Plane"), [""])
sketch24.MapMode = "FlatFace"
sketch24.AttachmentOffset = App.Placement(App.Vector(0, 0, 10.25), App.Rotation())
sketch24.addGeometry([
    Part.Circle(App.Vector(24.570852, 31, 0), App.Vector(0, 0, 1), 1),
    Part.Circle(App.Vector(-24.570852, 31, 0), App.Vector(0, 0, 1), 1),
], False)
sketch24.addConstraint([
    Sketcher.Constraint("Equal", 0, 1),
    Sketcher.Constraint("Symmetric", 0, 3, 1, 3, -2),
    Sketcher.Constraint("Diameter", 0, 2.0),
    Sketcher.Constraint("DistanceY", -1, 1, 0, 3, 31.0),
    Sketcher.Constraint("DistanceX", -1, 1, 0, 3, 24.570852),
])
pocket13 = body.newObject("PartDesign::Pocket", "Pocket012")
pocket13.Profile = sketch24
pocket13.Length = 16

sketch25 = body.newObject("Sketcher::SketchObject", "Sketch024")
sketch25.AttachmentSupport = (doc.getObject("YZ_Plane"), [""])
sketch25.MapMode = "FlatFace"
sketch25.AttachmentOffset = App.Placement(App.Vector(0, 0, 10.25), App.Rotation())
sketch25.addGeometry([
    Part.Circle(App.Vector(24.570852, 3, 0), App.Vector(0, 0, 1), 1),
    Part.Circle(App.Vector(-24.570852, 3, 0), App.Vector(0, 0, 1), 1),
], False)
sketch25.addConstraint([
    Sketcher.Constraint("Equal", 0, 1),
    Sketcher.Constraint("Symmetric", 0, 3, 1, 3, -2),
    Sketcher.Constraint("Diameter", 0, 2.0),
    Sketcher.Constraint("DistanceY", -1, 1, 0, 3, 3.0),
    Sketcher.Constraint("DistanceX", -1, 1, 0, 3, 24.570852),
])
pocket14 = body.newObject("PartDesign::Pocket", "Pocket013")
pocket14.Profile = sketch25
pocket14.Length = 5

sketch26 = body.newObject("Sketcher::SketchObject", "Sketch025")
sketch26.AttachmentSupport = (doc.getObject("XZ_Plane"), [""])
sketch26.MapMode = "FlatFace"
sketch26.AttachmentOffset = App.Placement(App.Vector(0, 0, 37.570852), App.Rotation())
sketch26.addGeometry(Part.Circle(App.Vector(0, 5, 0), App.Vector(0, 0, 1), 2.65), False)
sketch26.addConstraint([
    Sketcher.Constraint("PointOnObject", 0, 3, -2),
    Sketcher.Constraint("Diameter", 0, 5.3),
    Sketcher.Constraint("DistanceY", -1, 1, 0, 3, 5.0),
])
pocket15 = body.newObject("PartDesign::Pocket", "Pocket014")
pocket15.Profile = sketch26
pocket15.Length = 10

sketch27 = body.newObject("Sketcher::SketchObject", "Sketch026")
sketch27.AttachmentSupport = (doc.getObject("XZ_Plane"), [""])
sketch27.MapMode = "FlatFace"
sketch27.AttachmentOffset = App.Placement(App.Vector(0, 0, -27.570852), App.Rotation())
sketch27.addGeometry(Part.Circle(App.Vector(0, 5, 0), App.Vector(0, 0, 1), 2.65), False)
sketch27.addConstraint([
    Sketcher.Constraint("PointOnObject", 0, 3, -2),
    Sketcher.Constraint("Diameter", 0, 5.3),
    Sketcher.Constraint("DistanceY", -1, 1, 0, 3, 5.0),
])
pocket16 = body.newObject("PartDesign::Pocket", "Pocket015")
pocket16.Profile = sketch27
pocket16.Length = 10

sketch28 = body.newObject("Sketcher::SketchObject", "Sketch027")
sketch28.AttachmentSupport = (doc.getObject("XY_Plane"), [""])
sketch28.MapMode = "FlatFace"
sketch28.AttachmentOffset = App.Placement(App.Vector(0, 0, 29), App.Rotation())
add_polygon(sketch28, [(-54.964504, 75.485514), (67.736983, 75.485514), (67.736983, -71.435482), (-54.964504, -71.435482)])
add_polygon(sketch28, [(10.25, -27.570852), (10.25, 27.570852), (-12.25, 27.570852), (-12.25, -27.570852)])
sketch28.addConstraint([
    Sketcher.Constraint("Horizontal", 0),
    Sketcher.Constraint("Vertical", 1),
    Sketcher.Constraint("Horizontal", 2),
    Sketcher.Constraint("Vertical", 3),
    Sketcher.Constraint("Vertical", 4),
    Sketcher.Constraint("Horizontal", 5),
    Sketcher.Constraint("Vertical", 6),
    Sketcher.Constraint("Horizontal", 7),
    Sketcher.Constraint("DistanceX", 5, 2, 5, 1, 22.5),
    Sketcher.Constraint("DistanceX", -1, 1, 4, 2, 10.25),
    Sketcher.Constraint("DistanceX", 0, 1, 0, 2, 122.701487),
    Sketcher.Constraint("DistanceY", 1, 2, 1, 1, 146.920996),
    Sketcher.Constraint("DistanceY", 4, 1, 4, 2, 55.141705),
    Sketcher.Constraint("DistanceY", 1, 2, -1, 1, 71.435482),
    Sketcher.Constraint("DistanceY", 4, 2, 0, 2, 47.914662),
    Sketcher.Constraint("DistanceX", -1, 1, 0, 2, 67.736983),
])
pocket17 = body.newObject("PartDesign::Pocket", "Pocket016")
pocket17.Profile = sketch28
pocket17.Type = "ThroughAll"

sketch29 = body.newObject("Sketcher::SketchObject", "Sketch028")
sketch29.AttachmentSupport = (doc.getObject("XY_Plane"), [""])
sketch29.MapMode = "FlatFace"
sketch29.AttachmentOffset = App.Placement(App.Vector(0, 0, 29), App.Rotation())
sketch29.addGeometry([
    Part.Circle(App.Vector(-6.983371, 0.087697, 0), App.Vector(0, 0, 1), 1.5),
    Part.Circle(App.Vector(-0.087697, -6.983371, 0), App.Vector(0, 0, 1), 1.5),
    Part.Circle(App.Vector(6.983371, -0.087697, 0), App.Vector(0, 0, 1), 1.5),
    Part.Circle(App.Vector(5, 4.875978, 0), App.Vector(0, 0, 1), 1.5),
    Part.Circle(App.Vector(0.087697, 6.983371, 0), App.Vector(0, 0, 1), 1.5),
    Part.Circle(App.Vector(-4.875978, 5, 0), App.Vector(0, 0, 1), 1.5),
    Part.Circle(App.Vector(-5, -4.875978, 0), App.Vector(0, 0, 1), 1.5),
    Part.Circle(App.Vector(4.875978, -5, 0), App.Vector(0, 0, 1), 1.5),
], False)
sketch29.addConstraint([
    Sketcher.Constraint("Equal", 0, 1),
    Sketcher.Constraint("Equal", 1, 2),
    Sketcher.Constraint("Equal", 2, 3),
    Sketcher.Constraint("Equal", 3, 4),
    Sketcher.Constraint("Equal", 4, 5),
    Sketcher.Constraint("Equal", 5, 6),
    Sketcher.Constraint("Equal", 6, 7),
    Sketcher.Constraint("Symmetric", 0, 3, 2, 3, -1, 1),
    Sketcher.Constraint("Symmetric", 1, 3, 4, 3, -1, 1),
    Sketcher.Constraint("Symmetric", 3, 3, 6, 3, -1, 1),
    Sketcher.Constraint("Symmetric", 5, 3, 7, 3, -1, 1),
    Sketcher.Constraint("Diameter", 0, 3.0),
    Sketcher.Constraint("DistanceX", -1, 1, 3, 3, 5.0),
    Sketcher.Constraint("DistanceY", -1, 1, 5, 3, 5.0),
    Sketcher.Constraint("DistanceX", 0, 3, -1, 1, 6.983371),
    Sketcher.Constraint("DistanceY", 1, 3, -1, 1, 6.983371),
    Sketcher.Constraint("DistanceY", 1, 3, 3, 3, 11.859348),
    Sketcher.Constraint("DistanceY", 0, 3, 3, 3, 4.788281),
    Sketcher.Constraint("DistanceX", 5, 3, 2, 3, 11.859348),
    Sketcher.Constraint("DistanceX", 5, 3, 1, 3, 4.788281),
])
pocket18 = body.newObject("PartDesign::Pocket", "Pocket017")
pocket18.Profile = sketch29
pocket18.Length = 5
pocket18.Reversed = True

sketch30 = body.newObject("Sketcher::SketchObject", "Sketch029")
sketch30.AttachmentSupport = (doc.getObject("XY_Plane"), [""])
sketch30.MapMode = "FlatFace"
sketch30.AttachmentOffset = App.Placement(App.Vector(0, 0, 29), App.Rotation())
add_polygon(sketch30, [(10.25, 10), (10.25, -10), (-10.25, -10), (-10.25, 10)])
sketch30.addConstraint([
    Sketcher.Constraint("Vertical", 0),
    Sketcher.Constraint("Horizontal", 1),
    Sketcher.Constraint("Vertical", 2),
    Sketcher.Constraint("Horizontal", 3),
    Sketcher.Constraint("Symmetric", 0, 2, 2, 2, -1, 1),
    Sketcher.Constraint("DistanceY", 0, 2, 0, 1, 20.0),
    Sketcher.Constraint("DistanceX", 1, 2, 1, 1, 20.5),
])
pocket19 = body.newObject("PartDesign::Pocket", "Pocket018")
pocket19.Profile = sketch30
pocket19.Length = 2
pocket19.Reversed = True

doc.recompute()
